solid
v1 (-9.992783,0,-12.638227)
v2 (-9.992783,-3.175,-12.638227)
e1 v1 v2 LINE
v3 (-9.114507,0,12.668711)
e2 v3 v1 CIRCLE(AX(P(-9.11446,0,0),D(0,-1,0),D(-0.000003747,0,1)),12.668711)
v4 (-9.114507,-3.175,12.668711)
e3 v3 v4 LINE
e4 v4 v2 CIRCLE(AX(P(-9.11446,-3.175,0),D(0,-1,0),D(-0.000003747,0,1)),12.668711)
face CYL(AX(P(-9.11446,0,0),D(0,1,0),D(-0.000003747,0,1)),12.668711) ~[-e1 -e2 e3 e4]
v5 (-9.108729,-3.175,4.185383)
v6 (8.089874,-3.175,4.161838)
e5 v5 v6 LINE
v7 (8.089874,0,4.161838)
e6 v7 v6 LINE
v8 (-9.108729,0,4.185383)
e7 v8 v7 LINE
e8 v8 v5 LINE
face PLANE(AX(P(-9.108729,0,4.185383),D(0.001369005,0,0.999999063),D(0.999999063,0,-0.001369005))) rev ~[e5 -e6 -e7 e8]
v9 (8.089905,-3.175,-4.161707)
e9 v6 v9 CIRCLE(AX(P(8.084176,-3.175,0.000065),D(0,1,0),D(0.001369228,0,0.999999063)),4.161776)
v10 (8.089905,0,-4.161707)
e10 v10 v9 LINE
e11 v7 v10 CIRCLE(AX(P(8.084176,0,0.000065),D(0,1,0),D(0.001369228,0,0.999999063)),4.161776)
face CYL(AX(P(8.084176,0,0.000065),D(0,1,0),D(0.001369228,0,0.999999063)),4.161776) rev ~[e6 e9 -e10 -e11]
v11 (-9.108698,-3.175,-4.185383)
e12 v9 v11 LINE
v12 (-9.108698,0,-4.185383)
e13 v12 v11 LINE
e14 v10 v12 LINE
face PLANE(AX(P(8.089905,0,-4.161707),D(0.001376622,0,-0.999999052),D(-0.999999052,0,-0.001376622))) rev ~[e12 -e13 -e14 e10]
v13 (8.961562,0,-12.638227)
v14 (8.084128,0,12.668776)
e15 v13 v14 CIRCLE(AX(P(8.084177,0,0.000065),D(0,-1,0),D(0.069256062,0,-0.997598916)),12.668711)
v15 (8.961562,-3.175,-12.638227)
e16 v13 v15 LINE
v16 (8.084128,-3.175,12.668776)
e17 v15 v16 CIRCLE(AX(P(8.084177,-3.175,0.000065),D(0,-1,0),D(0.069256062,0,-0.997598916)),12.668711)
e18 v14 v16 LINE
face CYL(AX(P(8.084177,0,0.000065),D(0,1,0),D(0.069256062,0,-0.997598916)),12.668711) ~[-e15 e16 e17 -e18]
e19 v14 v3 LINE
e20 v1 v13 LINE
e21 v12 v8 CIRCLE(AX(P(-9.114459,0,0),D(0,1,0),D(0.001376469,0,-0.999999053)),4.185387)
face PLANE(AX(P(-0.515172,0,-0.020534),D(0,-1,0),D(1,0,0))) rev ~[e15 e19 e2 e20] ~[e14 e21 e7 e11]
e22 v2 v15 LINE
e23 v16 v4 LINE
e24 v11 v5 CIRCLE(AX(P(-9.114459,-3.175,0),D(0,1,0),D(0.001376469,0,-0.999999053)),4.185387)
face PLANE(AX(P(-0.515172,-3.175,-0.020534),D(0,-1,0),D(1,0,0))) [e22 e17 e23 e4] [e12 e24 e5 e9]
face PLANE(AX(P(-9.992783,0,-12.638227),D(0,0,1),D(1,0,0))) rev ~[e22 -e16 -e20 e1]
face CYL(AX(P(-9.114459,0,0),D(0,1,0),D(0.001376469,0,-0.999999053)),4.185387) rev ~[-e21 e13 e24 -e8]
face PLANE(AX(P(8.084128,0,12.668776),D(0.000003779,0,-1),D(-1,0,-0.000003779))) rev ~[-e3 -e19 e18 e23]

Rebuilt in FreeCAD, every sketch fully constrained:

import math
import FreeCAD as App
import Part
import Sketcher
Q = App.Units.Quantity

doc = App.newDocument("Part")
body = doc.addObject("PartDesign::Body", "Body")

# Sketch on XZ plane
sketch1 = body.newObject("Sketcher::SketchObject", "Sketch")
sketch1.AttachmentSupport = (doc.getObject("XZ_Plane"), [""])
sketch1.MapMode = "FlatFace"
sketch1.addGeometry(Part.LineSegment(App.Vector(-9.992783, -12.638227, 0), App.Vector(8.961562, -12.638227, 0)), False)
sketch1.addGeometry(Part.ArcOfCircle(Part.Circle(App.Vector(8.084177, 0.000065, 0), App.Vector(0, 0, 1), 12.668711), math.radians(-86.028741), math.radians(90.000222)), False)
sketch1.addGeometry(Part.LineSegment(App.Vector(8.084128, 12.668776, 0), App.Vector(-9.114507, 12.668711, 0)), False)
sketch1.addGeometry(Part.ArcOfCircle(Part.Circle(App.Vector(-9.11446, 0, 0), App.Vector(0, 0, 1), 12.668711), math.radians(90.000215), math.radians(266.024487)), False)
sketch1.addGeometry(Part.LineSegment(App.Vector(8.089905, -4.161707, 0), App.Vector(-9.108698, -4.185383, 0)), False)
sketch1.addGeometry(Part.ArcOfCircle(Part.Circle(App.Vector(-9.114459, 0, 0), App.Vector(0, 0, 1), 4.185387), math.radians(89.921558), math.radians(270.078866)), False)
sketch1.addGeometry(Part.LineSegment(App.Vector(-9.108729, 4.185383, 0), App.Vector(8.089874, 4.161838, 0)), False)
sketch1.addGeometry(Part.ArcOfCircle(Part.Circle(App.Vector(8.084176, 0.000065, 0), App.Vector(0, 0, 1), 4.161776), math.radians(-89.921122), math.radians(89.921549)), False)
sketch1.addConstraint(Sketcher.Constraint("Coincident", 0, 2, 1, 1))
sketch1.addConstraint(Sketcher.Constraint("Tangent", 1, 2, 2, 1))
sketch1.addConstraint(Sketcher.Constraint("Tangent", 2, 2, 3, 1))
sketch1.addConstraint(Sketcher.Constraint("Coincident", 3, 2, 0, 1))
sketch1.addConstraint(Sketcher.Constraint("Tangent", 4, 2, 5, 2))
sketch1.addConstraint(Sketcher.Constraint("Tangent", 5, 1, 6, 1))
sketch1.addConstraint(Sketcher.Constraint("Tangent", 6, 2, 7, 2))
sketch1.addConstraint(Sketcher.Constraint("Tangent", 7, 1, 4, 1))
sketch1.addConstraint(Sketcher.Constraint("Horizontal", 0))
sketch1.addConstraint(Sketcher.Constraint("Coincident", 5, 3, 3, 3))
sketch1.addConstraint(Sketcher.Constraint("Coincident", 7, 3, 1, 3))
sketch1.addConstraint(Sketcher.Constraint("Equal", 1, 3))
sketch1.addConstraint(Sketcher.Constraint("PointOnObject", 3, 3, -1))
sketch1.addConstraint(Sketcher.Constraint("Radius", 1, Q("12.668711 mm")))
sketch1.addConstraint(Sketcher.Constraint("DistanceX", -1, 1, 7, 1, Q("0.3185002 in")))
sketch1.addConstraint(Sketcher.Constraint("Radius", 5, Q("4.185387 mm")))
sketch1.addConstraint(Sketcher.Constraint("Radius", 7, Q("4.161776 mm")))
sketch1.addConstraint(Sketcher.Constraint("DistanceX", 7, 3, 6, 2, Q("0.005698 mm")))
sketch1.addConstraint(Sketcher.Constraint("Distance", 4, Q("17.198619 mm")))
sketch1.addConstraint(Sketcher.Constraint("DistanceX", 0, 1, 0, 2, Q("18.954345 mm")))
pad1 = body.newObject("PartDesign::Pad", "Pad")
pad1.Profile = sketch1
pad1.Length = Q("0.125 in")

doc.recompute()
